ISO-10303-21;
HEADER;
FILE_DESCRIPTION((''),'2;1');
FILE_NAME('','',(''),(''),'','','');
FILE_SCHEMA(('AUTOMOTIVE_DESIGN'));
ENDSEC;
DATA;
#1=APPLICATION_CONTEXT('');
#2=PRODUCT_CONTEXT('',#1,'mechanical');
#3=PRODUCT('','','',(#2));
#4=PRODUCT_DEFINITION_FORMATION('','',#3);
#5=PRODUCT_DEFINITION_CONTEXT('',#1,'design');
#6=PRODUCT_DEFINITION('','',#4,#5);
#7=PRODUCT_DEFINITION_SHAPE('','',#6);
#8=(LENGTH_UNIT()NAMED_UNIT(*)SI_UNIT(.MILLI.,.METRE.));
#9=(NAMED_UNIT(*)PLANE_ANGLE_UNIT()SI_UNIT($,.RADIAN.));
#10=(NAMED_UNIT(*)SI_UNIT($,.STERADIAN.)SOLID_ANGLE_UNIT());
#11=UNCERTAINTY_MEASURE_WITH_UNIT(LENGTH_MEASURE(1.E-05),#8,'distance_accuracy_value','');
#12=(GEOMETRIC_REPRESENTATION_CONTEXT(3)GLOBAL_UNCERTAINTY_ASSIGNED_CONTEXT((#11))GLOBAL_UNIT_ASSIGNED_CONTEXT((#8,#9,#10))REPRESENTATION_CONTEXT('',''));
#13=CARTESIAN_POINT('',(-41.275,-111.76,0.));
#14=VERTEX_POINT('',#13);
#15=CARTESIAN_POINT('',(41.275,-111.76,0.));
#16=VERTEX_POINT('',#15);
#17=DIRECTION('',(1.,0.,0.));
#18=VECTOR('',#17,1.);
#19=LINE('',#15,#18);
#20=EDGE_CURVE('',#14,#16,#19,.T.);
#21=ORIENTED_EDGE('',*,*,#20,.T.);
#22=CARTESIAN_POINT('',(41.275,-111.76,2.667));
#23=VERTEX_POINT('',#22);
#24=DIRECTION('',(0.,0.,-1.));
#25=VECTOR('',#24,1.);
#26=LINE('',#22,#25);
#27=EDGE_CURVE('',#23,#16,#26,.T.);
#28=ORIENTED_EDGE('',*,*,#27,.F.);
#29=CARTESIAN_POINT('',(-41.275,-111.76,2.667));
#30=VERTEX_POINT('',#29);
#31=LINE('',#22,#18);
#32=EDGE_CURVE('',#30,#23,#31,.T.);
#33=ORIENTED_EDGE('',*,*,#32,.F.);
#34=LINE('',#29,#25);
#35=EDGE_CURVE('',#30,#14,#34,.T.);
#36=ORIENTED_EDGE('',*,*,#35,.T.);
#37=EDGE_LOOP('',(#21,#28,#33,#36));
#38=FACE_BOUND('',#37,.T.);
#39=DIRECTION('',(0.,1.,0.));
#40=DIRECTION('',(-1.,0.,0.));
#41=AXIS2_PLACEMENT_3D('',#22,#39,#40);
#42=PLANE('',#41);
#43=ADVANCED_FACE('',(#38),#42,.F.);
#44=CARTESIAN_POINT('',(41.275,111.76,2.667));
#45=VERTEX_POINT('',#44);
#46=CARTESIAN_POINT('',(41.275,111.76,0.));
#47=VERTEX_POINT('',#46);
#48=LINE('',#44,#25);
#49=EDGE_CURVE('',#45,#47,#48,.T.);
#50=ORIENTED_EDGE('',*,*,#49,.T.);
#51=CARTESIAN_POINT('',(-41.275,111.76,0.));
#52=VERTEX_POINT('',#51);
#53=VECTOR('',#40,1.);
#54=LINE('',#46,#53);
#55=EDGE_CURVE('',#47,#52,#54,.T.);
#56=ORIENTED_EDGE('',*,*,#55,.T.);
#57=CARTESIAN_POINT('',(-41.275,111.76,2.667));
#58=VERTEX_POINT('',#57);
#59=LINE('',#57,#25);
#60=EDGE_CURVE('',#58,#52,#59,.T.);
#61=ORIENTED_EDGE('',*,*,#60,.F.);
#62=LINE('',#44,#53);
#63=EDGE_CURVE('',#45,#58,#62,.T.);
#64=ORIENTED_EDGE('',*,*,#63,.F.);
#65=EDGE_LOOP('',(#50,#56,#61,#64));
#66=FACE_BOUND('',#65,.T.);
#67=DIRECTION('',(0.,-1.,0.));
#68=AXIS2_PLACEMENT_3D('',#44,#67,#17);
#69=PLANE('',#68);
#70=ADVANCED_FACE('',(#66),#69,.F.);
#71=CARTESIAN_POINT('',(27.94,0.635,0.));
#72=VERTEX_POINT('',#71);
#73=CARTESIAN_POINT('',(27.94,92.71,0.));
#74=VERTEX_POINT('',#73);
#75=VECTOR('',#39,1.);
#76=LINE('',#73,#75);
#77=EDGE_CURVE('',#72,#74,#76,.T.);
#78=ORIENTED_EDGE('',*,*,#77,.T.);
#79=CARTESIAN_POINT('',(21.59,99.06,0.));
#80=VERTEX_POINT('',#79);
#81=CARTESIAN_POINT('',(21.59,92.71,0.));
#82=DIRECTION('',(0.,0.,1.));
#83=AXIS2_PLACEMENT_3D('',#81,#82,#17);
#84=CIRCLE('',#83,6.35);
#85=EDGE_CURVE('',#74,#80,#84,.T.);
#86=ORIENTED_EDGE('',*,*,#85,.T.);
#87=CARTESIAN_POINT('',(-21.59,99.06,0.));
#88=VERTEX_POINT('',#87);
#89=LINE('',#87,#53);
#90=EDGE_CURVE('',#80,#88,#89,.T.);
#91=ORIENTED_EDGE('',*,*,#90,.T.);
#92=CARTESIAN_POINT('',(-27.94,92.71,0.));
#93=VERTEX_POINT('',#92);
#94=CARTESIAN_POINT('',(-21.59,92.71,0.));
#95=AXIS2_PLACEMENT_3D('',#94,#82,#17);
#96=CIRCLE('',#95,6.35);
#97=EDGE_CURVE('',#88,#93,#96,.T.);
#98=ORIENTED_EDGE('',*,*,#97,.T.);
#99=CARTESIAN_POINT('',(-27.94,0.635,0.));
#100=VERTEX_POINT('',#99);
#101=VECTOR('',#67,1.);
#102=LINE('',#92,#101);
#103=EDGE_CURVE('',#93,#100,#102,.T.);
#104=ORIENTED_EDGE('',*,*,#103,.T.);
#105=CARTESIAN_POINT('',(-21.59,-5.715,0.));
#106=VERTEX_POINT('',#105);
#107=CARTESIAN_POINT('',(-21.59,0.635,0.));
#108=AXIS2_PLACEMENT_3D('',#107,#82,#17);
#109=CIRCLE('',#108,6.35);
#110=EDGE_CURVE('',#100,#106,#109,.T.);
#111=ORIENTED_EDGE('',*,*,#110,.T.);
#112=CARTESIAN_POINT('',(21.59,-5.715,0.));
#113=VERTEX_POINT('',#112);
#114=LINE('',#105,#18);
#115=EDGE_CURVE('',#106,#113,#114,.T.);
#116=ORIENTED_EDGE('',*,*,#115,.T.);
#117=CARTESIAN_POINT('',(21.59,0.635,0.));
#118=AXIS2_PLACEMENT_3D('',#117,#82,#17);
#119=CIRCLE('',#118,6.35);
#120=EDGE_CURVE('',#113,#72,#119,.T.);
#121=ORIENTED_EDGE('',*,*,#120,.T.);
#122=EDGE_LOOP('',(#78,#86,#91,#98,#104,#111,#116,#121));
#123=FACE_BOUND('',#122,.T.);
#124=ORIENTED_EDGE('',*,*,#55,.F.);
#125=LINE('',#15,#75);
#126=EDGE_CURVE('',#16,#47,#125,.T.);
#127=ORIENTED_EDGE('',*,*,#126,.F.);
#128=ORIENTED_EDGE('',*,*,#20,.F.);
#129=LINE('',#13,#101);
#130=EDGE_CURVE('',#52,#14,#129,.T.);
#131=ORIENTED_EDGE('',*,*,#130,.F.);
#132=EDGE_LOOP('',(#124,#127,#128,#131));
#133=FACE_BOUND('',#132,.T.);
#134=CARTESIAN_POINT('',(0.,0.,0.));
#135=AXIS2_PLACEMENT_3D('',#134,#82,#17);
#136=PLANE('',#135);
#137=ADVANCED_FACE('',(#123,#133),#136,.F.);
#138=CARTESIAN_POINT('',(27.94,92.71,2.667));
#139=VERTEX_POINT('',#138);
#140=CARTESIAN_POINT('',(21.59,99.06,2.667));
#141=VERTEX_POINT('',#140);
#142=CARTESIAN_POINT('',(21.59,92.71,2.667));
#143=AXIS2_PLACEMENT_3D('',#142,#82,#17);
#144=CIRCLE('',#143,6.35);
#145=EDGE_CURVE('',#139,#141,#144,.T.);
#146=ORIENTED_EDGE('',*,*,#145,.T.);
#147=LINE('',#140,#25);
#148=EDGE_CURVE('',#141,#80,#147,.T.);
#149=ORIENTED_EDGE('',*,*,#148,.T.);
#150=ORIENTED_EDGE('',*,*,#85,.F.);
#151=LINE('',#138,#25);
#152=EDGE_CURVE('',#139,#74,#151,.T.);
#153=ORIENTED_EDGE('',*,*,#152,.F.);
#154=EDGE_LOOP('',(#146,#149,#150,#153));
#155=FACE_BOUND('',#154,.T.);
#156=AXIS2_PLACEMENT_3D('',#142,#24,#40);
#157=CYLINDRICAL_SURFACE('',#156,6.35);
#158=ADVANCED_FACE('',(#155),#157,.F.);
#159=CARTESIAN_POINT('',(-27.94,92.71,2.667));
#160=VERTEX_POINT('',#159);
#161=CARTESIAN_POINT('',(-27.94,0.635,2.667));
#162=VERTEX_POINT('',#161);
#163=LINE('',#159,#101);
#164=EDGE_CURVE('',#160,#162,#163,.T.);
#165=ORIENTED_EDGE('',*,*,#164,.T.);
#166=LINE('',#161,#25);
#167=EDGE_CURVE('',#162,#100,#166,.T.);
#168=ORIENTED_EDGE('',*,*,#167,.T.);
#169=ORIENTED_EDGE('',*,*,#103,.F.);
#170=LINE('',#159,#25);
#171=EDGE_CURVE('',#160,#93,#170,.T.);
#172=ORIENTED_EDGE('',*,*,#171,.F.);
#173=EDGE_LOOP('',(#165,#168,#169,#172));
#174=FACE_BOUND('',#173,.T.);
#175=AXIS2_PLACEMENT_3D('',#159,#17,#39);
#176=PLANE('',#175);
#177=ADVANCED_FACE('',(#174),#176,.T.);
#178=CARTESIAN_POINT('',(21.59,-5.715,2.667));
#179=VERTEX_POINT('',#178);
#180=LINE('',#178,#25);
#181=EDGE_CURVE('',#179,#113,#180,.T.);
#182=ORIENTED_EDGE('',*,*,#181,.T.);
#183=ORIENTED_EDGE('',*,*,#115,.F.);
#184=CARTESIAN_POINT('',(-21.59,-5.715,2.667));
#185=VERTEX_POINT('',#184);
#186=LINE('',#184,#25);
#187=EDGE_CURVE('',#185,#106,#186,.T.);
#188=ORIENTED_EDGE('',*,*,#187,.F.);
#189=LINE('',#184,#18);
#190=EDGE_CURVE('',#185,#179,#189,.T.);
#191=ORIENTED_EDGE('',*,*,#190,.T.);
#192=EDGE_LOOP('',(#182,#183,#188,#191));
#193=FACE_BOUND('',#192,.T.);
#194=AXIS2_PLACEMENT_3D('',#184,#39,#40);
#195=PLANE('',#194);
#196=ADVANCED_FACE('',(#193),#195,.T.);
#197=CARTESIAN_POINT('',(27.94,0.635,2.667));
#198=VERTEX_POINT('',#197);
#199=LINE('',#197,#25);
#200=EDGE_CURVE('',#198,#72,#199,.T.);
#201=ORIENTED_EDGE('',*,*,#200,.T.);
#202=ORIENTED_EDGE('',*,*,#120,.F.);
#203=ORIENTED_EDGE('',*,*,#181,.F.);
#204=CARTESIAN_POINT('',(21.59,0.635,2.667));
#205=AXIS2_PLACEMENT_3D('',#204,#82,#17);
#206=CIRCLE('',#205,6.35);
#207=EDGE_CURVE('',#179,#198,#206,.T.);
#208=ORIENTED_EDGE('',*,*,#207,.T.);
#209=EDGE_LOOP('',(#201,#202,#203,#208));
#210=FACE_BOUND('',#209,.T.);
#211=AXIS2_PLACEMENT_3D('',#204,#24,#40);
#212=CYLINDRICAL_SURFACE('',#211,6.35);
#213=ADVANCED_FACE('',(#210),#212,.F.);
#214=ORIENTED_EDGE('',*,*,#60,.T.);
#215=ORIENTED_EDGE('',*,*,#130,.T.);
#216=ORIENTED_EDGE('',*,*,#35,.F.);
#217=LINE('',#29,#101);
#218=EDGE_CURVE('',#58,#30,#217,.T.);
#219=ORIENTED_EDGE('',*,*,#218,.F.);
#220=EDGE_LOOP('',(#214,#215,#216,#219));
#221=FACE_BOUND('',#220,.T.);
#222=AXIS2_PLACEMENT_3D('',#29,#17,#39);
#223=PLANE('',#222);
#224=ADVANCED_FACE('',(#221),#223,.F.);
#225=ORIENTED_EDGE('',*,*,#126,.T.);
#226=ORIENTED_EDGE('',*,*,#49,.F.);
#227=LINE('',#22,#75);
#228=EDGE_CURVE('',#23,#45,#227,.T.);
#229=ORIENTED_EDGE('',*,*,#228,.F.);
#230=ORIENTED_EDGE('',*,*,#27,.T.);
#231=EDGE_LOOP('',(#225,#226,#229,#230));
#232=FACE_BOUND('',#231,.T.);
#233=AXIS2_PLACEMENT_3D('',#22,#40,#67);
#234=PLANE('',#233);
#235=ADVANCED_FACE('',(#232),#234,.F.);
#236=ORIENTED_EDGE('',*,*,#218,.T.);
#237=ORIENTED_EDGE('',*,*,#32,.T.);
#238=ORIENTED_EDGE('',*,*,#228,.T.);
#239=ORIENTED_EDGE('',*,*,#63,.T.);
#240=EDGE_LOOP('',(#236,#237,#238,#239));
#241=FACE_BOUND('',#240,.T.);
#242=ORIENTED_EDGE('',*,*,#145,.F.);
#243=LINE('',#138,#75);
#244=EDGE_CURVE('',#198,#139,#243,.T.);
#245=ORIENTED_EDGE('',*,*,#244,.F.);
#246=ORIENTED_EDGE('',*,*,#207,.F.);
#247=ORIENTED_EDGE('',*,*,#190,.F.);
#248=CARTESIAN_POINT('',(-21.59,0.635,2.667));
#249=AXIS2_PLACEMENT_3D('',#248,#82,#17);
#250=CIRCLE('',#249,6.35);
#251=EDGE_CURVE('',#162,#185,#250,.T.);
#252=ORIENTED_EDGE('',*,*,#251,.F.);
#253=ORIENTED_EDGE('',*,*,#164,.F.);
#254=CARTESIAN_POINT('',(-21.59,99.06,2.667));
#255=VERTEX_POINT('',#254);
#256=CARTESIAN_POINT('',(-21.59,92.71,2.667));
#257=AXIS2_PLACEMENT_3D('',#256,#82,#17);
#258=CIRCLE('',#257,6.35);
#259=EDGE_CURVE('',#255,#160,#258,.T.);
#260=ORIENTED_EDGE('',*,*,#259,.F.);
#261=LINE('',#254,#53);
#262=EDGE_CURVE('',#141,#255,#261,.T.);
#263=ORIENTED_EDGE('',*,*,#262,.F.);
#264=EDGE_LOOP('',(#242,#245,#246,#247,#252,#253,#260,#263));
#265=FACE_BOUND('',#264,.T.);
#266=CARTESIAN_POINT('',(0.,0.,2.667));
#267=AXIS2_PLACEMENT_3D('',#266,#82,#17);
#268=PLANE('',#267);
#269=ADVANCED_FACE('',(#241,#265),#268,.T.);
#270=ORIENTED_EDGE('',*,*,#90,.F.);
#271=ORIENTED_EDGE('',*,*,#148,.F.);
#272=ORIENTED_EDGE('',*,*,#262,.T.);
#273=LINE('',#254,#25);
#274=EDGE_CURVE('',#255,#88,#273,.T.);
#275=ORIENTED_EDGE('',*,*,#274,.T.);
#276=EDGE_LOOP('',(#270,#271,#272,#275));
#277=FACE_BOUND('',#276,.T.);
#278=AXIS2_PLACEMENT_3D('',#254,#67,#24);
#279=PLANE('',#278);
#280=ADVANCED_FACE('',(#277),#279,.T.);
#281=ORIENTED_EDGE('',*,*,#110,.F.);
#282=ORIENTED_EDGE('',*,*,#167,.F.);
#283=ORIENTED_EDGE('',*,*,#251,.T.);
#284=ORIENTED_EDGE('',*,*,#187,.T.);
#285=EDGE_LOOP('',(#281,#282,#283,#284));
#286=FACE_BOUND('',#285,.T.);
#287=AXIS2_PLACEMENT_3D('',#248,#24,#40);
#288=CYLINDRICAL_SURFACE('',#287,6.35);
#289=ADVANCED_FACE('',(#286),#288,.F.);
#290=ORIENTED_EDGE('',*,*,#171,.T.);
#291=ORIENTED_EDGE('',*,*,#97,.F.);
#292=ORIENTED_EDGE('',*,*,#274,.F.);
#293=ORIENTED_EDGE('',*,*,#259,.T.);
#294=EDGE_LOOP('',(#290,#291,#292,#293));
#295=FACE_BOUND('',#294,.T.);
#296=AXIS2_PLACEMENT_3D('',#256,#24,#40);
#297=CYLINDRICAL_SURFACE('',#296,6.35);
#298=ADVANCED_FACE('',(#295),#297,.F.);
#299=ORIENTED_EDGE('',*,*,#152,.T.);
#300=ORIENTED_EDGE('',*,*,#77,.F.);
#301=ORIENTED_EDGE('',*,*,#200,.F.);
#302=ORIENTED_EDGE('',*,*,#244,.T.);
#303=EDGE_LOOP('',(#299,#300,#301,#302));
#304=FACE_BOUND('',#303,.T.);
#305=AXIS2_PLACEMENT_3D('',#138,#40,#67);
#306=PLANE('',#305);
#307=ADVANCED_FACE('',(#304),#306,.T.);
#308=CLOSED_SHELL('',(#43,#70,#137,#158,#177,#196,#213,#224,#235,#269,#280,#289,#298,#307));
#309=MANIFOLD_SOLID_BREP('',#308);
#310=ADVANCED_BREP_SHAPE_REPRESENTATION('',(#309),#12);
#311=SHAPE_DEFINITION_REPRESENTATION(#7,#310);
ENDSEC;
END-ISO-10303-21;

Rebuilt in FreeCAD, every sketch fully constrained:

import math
import FreeCAD as App
import Part
import Sketcher
from FreeCAD import Vector
Q = App.Units.Quantity


def add_polygon(sketch, points):
    """Adds a closed chain of lines whose ends are joined by coincident constraints."""
    first, n = sketch.GeometryCount, len(points)
    for a, b in zip(points, points[1:] + points[:1]):
        sketch.addGeometry(Part.LineSegment(App.Vector(*a, 0), App.Vector(*b, 0)), False)
    for i in range(n):
        sketch.addConstraint(Sketcher.Constraint("Coincident", first + i, 2, first + (i + 1) % n, 1))

doc = App.newDocument("Part")
body = doc.addObject("PartDesign::Body", "Body")

# Sketch on XY plane
sketch1 = body.newObject("Sketcher::SketchObject", "Sketch")
sketch1.AttachmentSupport = (doc.getObject("XY_Plane"), [""])
sketch1.MapMode = "FlatFace"
add_polygon(sketch1, [(-41, 112), (-41, -112), (41, -112), (41, 112)])  # lines 0-3
sketch1.addGeometry(Part.ArcOfCircle(Part.Circle(Vector(-22, 93, 0), Vector(0, 0, 1), 6), math.radians(90), math.radians(180)), False)  # 4
sketch1.addGeometry(Part.LineSegment(Vector(-22, 99, 0), Vector(22, 99, 0)), False)  # 5
sketch1.addGeometry(Part.ArcOfCircle(Part.Circle(Vector(22, 93, 0), Vector(0, 0, 1), 6), math.radians(0), math.radians(90)), False)  # 6
sketch1.addGeometry(Part.LineSegment(Vector(28, 93, 0), Vector(28, 1, 0)), False)  # 7
sketch1.addGeometry(Part.ArcOfCircle(Part.Circle(Vector(22, 1, 0), Vector(0, 0, 1), 6), math.radians(-90), math.radians(0)), False)  # 8
sketch1.addGeometry(Part.LineSegment(Vector(22, -6, 0), Vector(-22, -6, 0)), False)  # 9
sketch1.addGeometry(Part.ArcOfCircle(Part.Circle(Vector(-22, 1, 0), Vector(0, 0, 1), 6), math.radians(180), math.radians(270)), False)  # 10
sketch1.addGeometry(Part.LineSegment(Vector(-28, 1, 0), Vector(-28, 93, 0)), False)  # 11
sketch1.addConstraint(Sketcher.Constraint("Tangent", 4, 1, 5, 1))
sketch1.addConstraint(Sketcher.Constraint("Tangent", 5, 2, 6, 2))
sketch1.addConstraint(Sketcher.Constraint("Tangent", 6, 1, 7, 1))
sketch1.addConstraint(Sketcher.Constraint("Tangent", 7, 2, 8, 2))
sketch1.addConstraint(Sketcher.Constraint("Tangent", 8, 1, 9, 1))
sketch1.addConstraint(Sketcher.Constraint("Tangent", 9, 2, 10, 2))
sketch1.addConstraint(Sketcher.Constraint("Tangent", 10, 1, 11, 1))
sketch1.addConstraint(Sketcher.Constraint("Tangent", 11, 2, 4, 2))
sketch1.addConstraint(Sketcher.Constraint("Vertical", 0))
sketch1.addConstraint(Sketcher.Constraint("Horizontal", 1))
sketch1.addConstraint(Sketcher.Constraint("Vertical", 2))
sketch1.addConstraint(Sketcher.Constraint("Horizontal", 3))
sketch1.addConstraint(Sketcher.Constraint("Horizontal", 5))
sketch1.addConstraint(Sketcher.Constraint("Vertical", 7))
sketch1.addConstraint(Sketcher.Constraint("Horizontal", 9))
sketch1.addConstraint(Sketcher.Constraint("Vertical", 11))
sketch1.addConstraint(Sketcher.Constraint("Equal", 4, 6))
sketch1.addConstraint(Sketcher.Constraint("Equal", 6, 8))
sketch1.addConstraint(Sketcher.Constraint("Equal", 8, 10))
sketch1.addConstraint(Sketcher.Constraint("Symmetric", 0, 2, 2, 2, -1, 1))
sketch1.addConstraint(Sketcher.Constraint("Radius", 4, Q("0.25 in")))
sketch1.addConstraint(Sketcher.Constraint("DistanceX", 5, 1, 5, 2, Q("1.7 in")))
sketch1.addConstraint(Sketcher.Constraint("DistanceY", 0, 2, 0, 1, Q("8.8 in")))
sketch1.addConstraint(Sketcher.Constraint("DistanceX", 1, 1, 1, 2, Q("3.25 in")))
sketch1.addConstraint(Sketcher.Constraint("DistanceY", -1, 1, 4, 1, Q("3.9 in")))
sketch1.addConstraint(Sketcher.Constraint("DistanceX", -1, 1, 6, 1, Q("1.1 in")))
sketch1.addConstraint(Sketcher.Constraint("DistanceY", 7, 2, 7, 1, Q("3.625 in")))
pad1 = body.newObject("PartDesign::Pad", "Pad")
pad1.Profile = sketch1
pad1.Length = Q("0.105 in")

doc.recompute()
